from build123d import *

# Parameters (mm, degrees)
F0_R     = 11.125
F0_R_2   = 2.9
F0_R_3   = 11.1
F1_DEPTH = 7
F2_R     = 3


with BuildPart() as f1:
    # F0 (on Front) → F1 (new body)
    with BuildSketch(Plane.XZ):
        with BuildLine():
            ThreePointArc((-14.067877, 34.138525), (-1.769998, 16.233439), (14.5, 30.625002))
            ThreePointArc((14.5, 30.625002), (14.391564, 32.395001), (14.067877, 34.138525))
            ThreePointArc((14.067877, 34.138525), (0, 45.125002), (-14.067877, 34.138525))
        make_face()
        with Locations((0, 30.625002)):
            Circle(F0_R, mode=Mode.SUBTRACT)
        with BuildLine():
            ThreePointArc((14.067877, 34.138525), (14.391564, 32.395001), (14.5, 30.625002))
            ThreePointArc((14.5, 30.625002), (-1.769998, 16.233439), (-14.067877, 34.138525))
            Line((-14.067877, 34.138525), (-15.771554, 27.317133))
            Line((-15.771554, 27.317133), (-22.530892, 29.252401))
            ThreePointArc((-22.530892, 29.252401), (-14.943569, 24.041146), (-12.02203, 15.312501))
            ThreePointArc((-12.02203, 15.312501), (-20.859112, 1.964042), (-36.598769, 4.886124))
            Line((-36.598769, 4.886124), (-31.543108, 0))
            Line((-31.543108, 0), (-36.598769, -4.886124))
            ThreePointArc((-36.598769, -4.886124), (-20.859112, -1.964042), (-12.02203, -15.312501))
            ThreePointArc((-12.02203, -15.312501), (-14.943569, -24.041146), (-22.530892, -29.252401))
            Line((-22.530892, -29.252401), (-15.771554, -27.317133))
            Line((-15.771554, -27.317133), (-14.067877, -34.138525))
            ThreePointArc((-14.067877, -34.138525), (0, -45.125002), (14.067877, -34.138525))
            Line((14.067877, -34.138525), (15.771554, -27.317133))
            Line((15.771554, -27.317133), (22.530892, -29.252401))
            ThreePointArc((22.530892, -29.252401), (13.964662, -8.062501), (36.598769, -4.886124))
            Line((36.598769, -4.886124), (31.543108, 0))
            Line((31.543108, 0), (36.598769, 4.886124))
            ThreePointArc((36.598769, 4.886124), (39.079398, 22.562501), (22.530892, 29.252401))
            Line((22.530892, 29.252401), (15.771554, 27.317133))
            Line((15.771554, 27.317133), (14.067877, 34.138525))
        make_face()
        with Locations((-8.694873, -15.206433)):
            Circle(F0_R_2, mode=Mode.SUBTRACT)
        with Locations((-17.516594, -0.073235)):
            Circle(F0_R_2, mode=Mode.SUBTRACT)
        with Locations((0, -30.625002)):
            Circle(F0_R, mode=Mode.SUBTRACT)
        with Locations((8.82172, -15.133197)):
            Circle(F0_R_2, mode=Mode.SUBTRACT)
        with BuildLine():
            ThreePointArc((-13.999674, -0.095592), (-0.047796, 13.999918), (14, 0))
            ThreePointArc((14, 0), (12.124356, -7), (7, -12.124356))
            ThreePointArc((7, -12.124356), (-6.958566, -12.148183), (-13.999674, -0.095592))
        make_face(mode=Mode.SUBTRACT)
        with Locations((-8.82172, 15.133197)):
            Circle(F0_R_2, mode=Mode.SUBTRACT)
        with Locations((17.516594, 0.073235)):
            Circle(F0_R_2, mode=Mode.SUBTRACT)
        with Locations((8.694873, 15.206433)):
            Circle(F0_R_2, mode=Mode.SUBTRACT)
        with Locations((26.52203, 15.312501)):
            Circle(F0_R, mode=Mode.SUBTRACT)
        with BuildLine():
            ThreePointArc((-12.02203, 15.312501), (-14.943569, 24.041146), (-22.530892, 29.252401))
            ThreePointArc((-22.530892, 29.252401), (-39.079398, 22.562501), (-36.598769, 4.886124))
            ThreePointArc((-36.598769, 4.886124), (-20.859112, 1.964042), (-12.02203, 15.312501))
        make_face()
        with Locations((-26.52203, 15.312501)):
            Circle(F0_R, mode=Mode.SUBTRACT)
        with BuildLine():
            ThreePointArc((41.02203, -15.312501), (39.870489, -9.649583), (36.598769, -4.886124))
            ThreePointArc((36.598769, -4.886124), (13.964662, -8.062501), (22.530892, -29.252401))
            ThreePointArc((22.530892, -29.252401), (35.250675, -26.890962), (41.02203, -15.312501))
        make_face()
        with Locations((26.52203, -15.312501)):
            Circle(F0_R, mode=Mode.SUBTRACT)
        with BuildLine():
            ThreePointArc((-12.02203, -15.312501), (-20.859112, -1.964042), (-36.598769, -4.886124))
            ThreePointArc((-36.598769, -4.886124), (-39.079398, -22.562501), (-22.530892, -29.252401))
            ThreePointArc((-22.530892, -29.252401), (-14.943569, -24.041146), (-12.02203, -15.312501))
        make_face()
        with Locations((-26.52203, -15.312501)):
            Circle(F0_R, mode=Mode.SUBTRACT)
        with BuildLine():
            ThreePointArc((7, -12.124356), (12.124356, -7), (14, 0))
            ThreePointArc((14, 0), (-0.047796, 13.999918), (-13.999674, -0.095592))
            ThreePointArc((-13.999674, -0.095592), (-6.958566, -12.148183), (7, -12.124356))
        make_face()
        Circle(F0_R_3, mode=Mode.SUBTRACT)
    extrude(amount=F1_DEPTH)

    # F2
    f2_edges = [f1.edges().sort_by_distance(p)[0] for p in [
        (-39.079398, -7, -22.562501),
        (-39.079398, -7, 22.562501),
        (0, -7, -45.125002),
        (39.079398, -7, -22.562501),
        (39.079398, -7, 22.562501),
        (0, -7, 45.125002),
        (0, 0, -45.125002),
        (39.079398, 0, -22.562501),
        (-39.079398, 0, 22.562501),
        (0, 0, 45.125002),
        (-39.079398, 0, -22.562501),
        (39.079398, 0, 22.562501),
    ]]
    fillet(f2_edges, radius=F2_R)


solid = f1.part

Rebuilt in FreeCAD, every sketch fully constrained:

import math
import FreeCAD as App
import Part
import Sketcher
from FreeCAD import Vector
Q = App.Units.Quantity


def edges_at(feature, points):
    """Names of the edges that pass closest to the given points."""
    edges = feature.Shape.Edges
    near = lambda p: min(range(len(edges)), key=lambda i: edges[i].distToShape(Part.Vertex(*p))[0])
    return sorted({f"Edge{near(p) + 1}" for p in points})

doc = App.newDocument("Part")
body = doc.addObject("PartDesign::Body", "Body")

sketch1 = body.newObject("Sketcher::SketchObject", "Sketch")
sketch1.AttachmentSupport = (doc.getObject("XZ_Plane"), [""])
sketch1.MapMode = "FlatFace"
sketch1.addGeometry([
    Part.ArcOfCircle(Part.Circle(Vector(0, 30.625002, 0), Vector(0, 0, 1), 14.5), math.radians(14.023034), math.radians(165.976966)),
    Part.LineSegment(Vector(-14.067877, 34.138525, 0), Vector(-15.771554, 27.317133, 0)),
    Part.LineSegment(Vector(-15.771554, 27.317133, 0), Vector(-22.530892, 29.252401, 0)),
    Part.ArcOfCircle(Part.Circle(Vector(-26.52203, 15.312501, 0), Vector(0, 0, 1), 14.5), math.radians(74.023035), math.radians(225.976964)),
    Part.LineSegment(Vector(-36.598769, 4.886124, 0), Vector(-31.543108, 0, 0)),
    Part.LineSegment(Vector(-31.543108, 0, 0), Vector(-36.598769, -4.886124, 0)),
    Part.ArcOfCircle(Part.Circle(Vector(-26.52203, -15.312501, 0), Vector(0, 0, 1), 14.5), math.radians(134.023036), math.radians(285.976965)),
    Part.LineSegment(Vector(-22.530892, -29.252401, 0), Vector(-15.771554, -27.317133, 0)),
    Part.LineSegment(Vector(-15.771554, -27.317133, 0), Vector(-14.067877, -34.138525, 0)),
    Part.ArcOfCircle(Part.Circle(Vector(0, -30.625002, 0), Vector(0, 0, 1), 14.5), math.radians(-165.976966), math.radians(-14.023034)),
    Part.LineSegment(Vector(14.067877, -34.138525, 0), Vector(15.771554, -27.317133, 0)),
    Part.LineSegment(Vector(15.771554, -27.317133, 0), Vector(22.530892, -29.252401, 0)),
    Part.ArcOfCircle(Part.Circle(Vector(26.52203, -15.312501, 0), Vector(0, 0, 1), 14.5), math.radians(-105.976968), math.radians(0.000001)),
    Part.ArcOfCircle(Part.Circle(Vector(26.522028, -15.312502, 0), Vector(0, 0, 1), 14.500002), math.radians(0.000002), math.radians(45.976961)),
    Part.LineSegment(Vector(36.598769, -4.886124, 0), Vector(31.543108, 0, 0)),
    Part.LineSegment(Vector(31.543108, 0, 0), Vector(36.598769, 4.886124, 0)),
    Part.ArcOfCircle(Part.Circle(Vector(26.52203, 15.312501, 0), Vector(0, 0, 1), 14.5), math.radians(-45.976964), math.radians(105.976965)),
    Part.LineSegment(Vector(22.530892, 29.252401, 0), Vector(15.771554, 27.317133, 0)),
    Part.LineSegment(Vector(15.771554, 27.317133, 0), Vector(14.067877, 34.138525, 0)),
    Part.Circle(Vector(-26.52203, -15.312501, 0), Vector(0, 0, 1), 11.125),
    Part.Circle(Vector(-8.694873, -15.206433, 0), Vector(0, 0, 1), 2.9),
    Part.Circle(Vector(-17.516594, -0.073235, 0), Vector(0, 0, 1), 2.9),
    Part.Circle(Vector(0, -30.625002, 0), Vector(0, 0, 1), 11.125),
    Part.Circle(Vector(8.82172, -15.133197, 0), Vector(0, 0, 1), 2.9),
    Part.Circle(Vector(26.52203, -15.312501, 0), Vector(0, 0, 1), 11.125),
    Part.Circle(Vector(-26.52203, 15.312501, 0), Vector(0, 0, 1), 11.125),
    Part.Circle(Vector(-8.82172, 15.133197, 0), Vector(0, 0, 1), 2.9),
    Part.Circle(Vector(0, 0, 0), Vector(0, 0, 1), 11.1),
    Part.Circle(Vector(17.516594, 0.073235, 0), Vector(0, 0, 1), 2.9),
    Part.Circle(Vector(8.694873, 15.206433, 0), Vector(0, 0, 1), 2.9),
    Part.Circle(Vector(26.52203, 15.312501, 0), Vector(0, 0, 1), 11.125),
    Part.Circle(Vector(0, 30.625002, 0), Vector(0, 0, 1), 11.125),
], False)
sketch1.addConstraint([
    Sketcher.Constraint("Tangent", 0, 2, 1, 1),
    Sketcher.Constraint("Coincident", 1, 2, 2, 1),
    Sketcher.Constraint("Tangent", 2, 2, 3, 1),
    Sketcher.Constraint("Tangent", 3, 2, 4, 1),
    Sketcher.Constraint("Coincident", 4, 2, 5, 1),
    Sketcher.Constraint("Tangent", 5, 2, 6, 1),
    Sketcher.Constraint("Tangent", 6, 2, 7, 1),
    Sketcher.Constraint("Coincident", 7, 2, 8, 1),
    Sketcher.Constraint("Tangent", 8, 2, 9, 1),
    Sketcher.Constraint("Tangent", 9, 2, 10, 1),
    Sketcher.Constraint("Coincident", 10, 2, 11, 1),
    Sketcher.Constraint("Tangent", 11, 2, 12, 1),
    Sketcher.Constraint("Tangent", 12, 2, 13, 1),
    Sketcher.Constraint("Tangent", 13, 2, 14, 1),
    Sketcher.Constraint("Coincident", 14, 2, 15, 1),
    Sketcher.Constraint("Tangent", 15, 2, 16, 1),
    Sketcher.Constraint("Tangent", 16, 2, 17, 1),
    Sketcher.Constraint("Coincident", 17, 2, 18, 1),
    Sketcher.Constraint("Tangent", 18, 2, 0, 1),
    Sketcher.Constraint("Coincident", 27, 3, -1, 1),
    Sketcher.Constraint("Coincident", 19, 3, 6, 3),
    Sketcher.Constraint("Coincident", 22, 3, 9, 3),
    Sketcher.Constraint("Coincident", 24, 3, 12, 3),
    Sketcher.Constraint("Coincident", 25, 3, 3, 3),
    Sketcher.Constraint("Coincident", 30, 3, 16, 3),
    Sketcher.Constraint("Coincident", 31, 3, 0, 3),
    Sketcher.Constraint("Equal", 0, 3),
    Sketcher.Constraint("Equal", 3, 6),
    Sketcher.Constraint("Equal", 6, 9),
    Sketcher.Constraint("Equal", 9, 12),
    Sketcher.Constraint("Equal", 9, 13),
    Sketcher.Constraint("Equal", 12, 16),
    Sketcher.Constraint("Equal", 20, 21),
    Sketcher.Constraint("Equal", 19, 22),
    Sketcher.Constraint("Equal", 21, 23),
    Sketcher.Constraint("Equal", 22, 24),
    Sketcher.Constraint("Equal", 24, 25),
    Sketcher.Constraint("Equal", 23, 26),
    Sketcher.Constraint("Equal", 26, 28),
    Sketcher.Constraint("Equal", 28, 29),
    Sketcher.Constraint("Equal", 25, 30),
    Sketcher.Constraint("Equal", 30, 31),
    Sketcher.Constraint("Symmetric", 0, 3, 9, 3, -1, 1),
    Sketcher.Constraint("Symmetric", 3, 3, 12, 3, -1, 1),
    Sketcher.Constraint("Symmetric", 6, 3, 16, 3, -1, 1),
    Sketcher.Constraint("Symmetric", 23, 3, 26, 3, -1, 1),
    Sketcher.Constraint("Symmetric", 21, 3, 28, 3, -1, 1),
    Sketcher.Constraint("Symmetric", 20, 3, 29, 3, -1, 1),
    Sketcher.Constraint("Symmetric", 1, 2, 10, 2, -1, 1),
    Sketcher.Constraint("Symmetric", 4, 2, 14, 2, -1, 1),
    Sketcher.Constraint("Symmetric", 7, 2, 17, 2, -1, 1),
    Sketcher.Constraint("Symmetric", 6, 3, 12, 3, -2),
    Sketcher.Constraint("Symmetric", 8, 2, 9, 2, -2),
    Sketcher.Constraint("PointOnObject", 4, 2, -1),
    Sketcher.Constraint("Horizontal", 7, 2, 10, 2),
    Sketcher.Constraint("Horizontal", 24, 3, 12, 2),
    Sketcher.Constraint("Equal", 1, 2),
    Sketcher.Constraint("Equal", 2, 4),
    Sketcher.Constraint("Diameter", 20, Q("5.8 mm")),
    Sketcher.Constraint("Diameter", 27, Q("22.2 mm")),
    Sketcher.Constraint("Radius", 0, Q("14.5 mm")),
    Sketcher.Constraint("Diameter", 19, Q("22.25 mm")),
    Sketcher.Constraint("DistanceY", -1, 1, 0, 3, Q("30.625002 mm")),
    Sketcher.Constraint("DistanceY", 6, 3, 3, 3, Q("30.625001 mm")),
    Sketcher.Constraint("DistanceY", -1, 1, 2, 2, Q("29.252401 mm")),
    Sketcher.Constraint("DistanceX", 20, 3, 13, 3, Q("35.216901 mm")),
    Sketcher.Constraint("DistanceY", 7, 2, 20, 3, Q("12.1107 mm")),
    Sketcher.Constraint("DistanceX", 3, 3, -1, 1, Q("26.52203 mm")),
    Sketcher.Constraint("DistanceX", -1, 1, 23, 3, Q("8.82172 mm")),
    Sketcher.Constraint("DistanceX", 21, 3, 20, 3, Q("8.821721 mm")),
    Sketcher.Constraint("DistanceY", 20, 3, 26, 3, Q("30.33963 mm")),
    Sketcher.Constraint("DistanceY", 21, 3, 3, 2, Q("4.959359 mm")),
])
pad1 = body.newObject("PartDesign::Pad", "Pad")
pad1.Profile = sketch1
pad1.Length = 7
doc.recompute()

fillet = body.newObject("PartDesign::Fillet", "Fillet")
fillet.Base = (pad1, edges_at(pad1, [
    (-39.079, -7, -22.563),
    (-39.079, -7, 22.563),
    (0, -7, -45.125),
    (35.251, -7, -26.891),
    (39.079, -7, 22.563),
    (0, -7, 45.125),
    (0, 0, -45.125),
    (35.251, 0, -26.891),
    (-39.079, 0, 22.563),
    (0, 0, 45.125),
    (-39.079, 0, -22.563),
    (39.079, 0, 22.563),
]))
fillet.Radius = 3

doc.recompute()
